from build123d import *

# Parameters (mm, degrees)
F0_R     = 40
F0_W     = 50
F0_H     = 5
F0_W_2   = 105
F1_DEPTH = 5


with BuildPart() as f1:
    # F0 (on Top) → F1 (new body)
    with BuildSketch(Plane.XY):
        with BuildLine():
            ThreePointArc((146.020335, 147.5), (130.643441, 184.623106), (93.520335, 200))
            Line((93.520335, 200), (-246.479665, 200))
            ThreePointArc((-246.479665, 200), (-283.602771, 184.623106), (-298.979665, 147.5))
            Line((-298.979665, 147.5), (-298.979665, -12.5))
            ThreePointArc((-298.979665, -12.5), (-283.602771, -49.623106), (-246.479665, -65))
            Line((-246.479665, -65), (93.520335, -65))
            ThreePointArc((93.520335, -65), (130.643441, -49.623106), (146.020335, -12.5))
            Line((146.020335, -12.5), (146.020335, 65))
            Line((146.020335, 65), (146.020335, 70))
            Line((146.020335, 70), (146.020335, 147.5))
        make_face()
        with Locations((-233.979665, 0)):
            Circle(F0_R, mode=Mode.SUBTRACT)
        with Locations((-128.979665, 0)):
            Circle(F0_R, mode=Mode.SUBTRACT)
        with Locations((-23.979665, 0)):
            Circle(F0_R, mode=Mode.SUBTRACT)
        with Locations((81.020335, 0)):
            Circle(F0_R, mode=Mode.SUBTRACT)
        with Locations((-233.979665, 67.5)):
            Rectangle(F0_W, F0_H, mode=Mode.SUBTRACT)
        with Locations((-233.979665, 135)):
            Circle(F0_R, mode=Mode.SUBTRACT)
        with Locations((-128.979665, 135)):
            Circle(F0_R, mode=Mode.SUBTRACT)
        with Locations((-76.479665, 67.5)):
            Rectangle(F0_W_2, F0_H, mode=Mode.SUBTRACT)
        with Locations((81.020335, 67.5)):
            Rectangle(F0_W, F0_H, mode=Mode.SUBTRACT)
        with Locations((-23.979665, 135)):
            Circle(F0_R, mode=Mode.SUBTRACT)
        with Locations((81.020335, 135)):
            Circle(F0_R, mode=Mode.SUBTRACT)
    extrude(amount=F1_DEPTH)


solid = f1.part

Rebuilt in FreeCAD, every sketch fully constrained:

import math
import FreeCAD as App
import Part
import Sketcher
from FreeCAD import Vector


def add_polygon(sketch, points):
    """Adds a closed chain of lines whose ends are joined by coincident constraints."""
    first, n = sketch.GeometryCount, len(points)
    for a, b in zip(points, points[1:] + points[:1]):
        sketch.addGeometry(Part.LineSegment(App.Vector(*a, 0), App.Vector(*b, 0)), False)
    for i in range(n):
        sketch.addConstraint(Sketcher.Constraint("Coincident", first + i, 2, first + (i + 1) % n, 1))

doc = App.newDocument("Part")
params = doc.addObject("Spreadsheet::Sheet", "Params")
for row, (alias, value) in enumerate([
    ("sketch1_diameter", "80 mm"),
    ("sketch1_radius", "52.5 mm"),
    ("sketch1_width", "340 mm"),
    ("sketch1_width2", "50 mm"),
    ("sketch1_width3", "105 mm"),
    ("pad1_length", "5 mm"),
], start=1):
    params.set(f"A{row}", alias)
    params.set(f"B{row}", "=" + value)
    params.setAlias(f"B{row}", alias)

body = doc.addObject("PartDesign::Body", "Body")

# Sketch on XY plane
sketch1 = body.newObject("Sketcher::SketchObject", "Sketch")
sketch1.AttachmentSupport = (doc.getObject("XY_Plane"), [""])
sketch1.MapMode = "FlatFace"
sketch1.addGeometry(Part.ArcOfCircle(Part.Circle(Vector(94, 147, 0), Vector(0, 0, 1), 53), math.radians(0), math.radians(90)), False)  # 0
sketch1.addGeometry(Part.LineSegment(Vector(94, 200, 0), Vector(-246, 200, 0)), False)  # 1
sketch1.addGeometry(Part.ArcOfCircle(Part.Circle(Vector(-246, 147, 0), Vector(0, 0, 1), 53), math.radians(90), math.radians(180)), False)  # 2
sketch1.addGeometry(Part.LineSegment(Vector(-299, 148, 0), Vector(-299, -12, 0)), False)  # 3
sketch1.addGeometry(Part.ArcOfCircle(Part.Circle(Vector(-246, -12, 0), Vector(0, 0, 1), 53), math.radians(-180), math.radians(-90)), False)  # 4
sketch1.addGeometry(Part.LineSegment(Vector(-246, -65, 0), Vector(94, -65, 0)), False)  # 5
sketch1.addGeometry(Part.ArcOfCircle(Part.Circle(Vector(94, -12, 0), Vector(0, 0, 1), 53), math.radians(-90), math.radians(0)), False)  # 6
sketch1.addGeometry(Part.LineSegment(Vector(146, -12, 0), Vector(146, 148, 0)), False)  # 7
sketch1.addGeometry(Part.Circle(Vector(-234, 0, 0), Vector(0, 0, 1), 40), False)  # 8
sketch1.addGeometry(Part.Circle(Vector(-129, 0, 0), Vector(0, 0, 1), 40), False)  # 9
sketch1.addGeometry(Part.Circle(Vector(-24, 0, 0), Vector(0, 0, 1), 40), False)  # 10
sketch1.addGeometry(Part.Circle(Vector(81, 0, 0), Vector(0, 0, 1), 40), False)  # 11
add_polygon(sketch1, [(-209, 65), (-259, 65), (-259, 70), (-209, 70)])  # lines 12-15
sketch1.addGeometry(Part.Circle(Vector(-234, 135, 0), Vector(0, 0, 1), 40), False)  # 16
sketch1.addGeometry(Part.Circle(Vector(-129, 135, 0), Vector(0, 0, 1), 40), False)  # 17
add_polygon(sketch1, [(-24, 65), (-129, 65), (-129, 70), (-24, 70)])  # lines 18-21
add_polygon(sketch1, [(106, 65), (56, 65), (56, 70), (106, 70)])  # lines 22-25
sketch1.addGeometry(Part.Circle(Vector(-24, 135, 0), Vector(0, 0, 1), 40), False)  # 26
sketch1.addGeometry(Part.Circle(Vector(81, 135, 0), Vector(0, 0, 1), 40), False)  # 27
sketch1.addConstraint(Sketcher.Constraint("Tangent", 0, 2, 1, 1))
sketch1.addConstraint(Sketcher.Constraint("Tangent", 1, 2, 2, 1))
sketch1.addConstraint(Sketcher.Constraint("Tangent", 2, 2, 3, 1))
sketch1.addConstraint(Sketcher.Constraint("Tangent", 3, 2, 4, 1))
sketch1.addConstraint(Sketcher.Constraint("Tangent", 4, 2, 5, 1))
sketch1.addConstraint(Sketcher.Constraint("Tangent", 5, 2, 6, 1))
sketch1.addConstraint(Sketcher.Constraint("Tangent", 6, 2, 7, 1))
sketch1.addConstraint(Sketcher.Constraint("Tangent", 7, 2, 0, 1))
sketch1.addConstraint(Sketcher.Constraint("Horizontal", 1))
sketch1.addConstraint(Sketcher.Constraint("Vertical", 3))
sketch1.addConstraint(Sketcher.Constraint("Horizontal", 5))
sketch1.addConstraint(Sketcher.Constraint("Vertical", 7))
sketch1.addConstraint(Sketcher.Constraint("Horizontal", 12))
sketch1.addConstraint(Sketcher.Constraint("Vertical", 13))
sketch1.addConstraint(Sketcher.Constraint("Horizontal", 14))
sketch1.addConstraint(Sketcher.Constraint("Vertical", 15))
sketch1.addConstraint(Sketcher.Constraint("Horizontal", 18))
sketch1.addConstraint(Sketcher.Constraint("Vertical", 19))
sketch1.addConstraint(Sketcher.Constraint("Horizontal", 20))
sketch1.addConstraint(Sketcher.Constraint("Vertical", 21))
sketch1.addConstraint(Sketcher.Constraint("Horizontal", 22))
sketch1.addConstraint(Sketcher.Constraint("Vertical", 23))
sketch1.addConstraint(Sketcher.Constraint("Horizontal", 24))
sketch1.addConstraint(Sketcher.Constraint("Vertical", 25))
sketch1.addConstraint(Sketcher.Constraint("Equal", 0, 2))
sketch1.addConstraint(Sketcher.Constraint("Equal", 2, 4))
sketch1.addConstraint(Sketcher.Constraint("Equal", 4, 6))
sketch1.addConstraint(Sketcher.Constraint("Equal", 8, 9))
sketch1.addConstraint(Sketcher.Constraint("Equal", 9, 10))
sketch1.addConstraint(Sketcher.Constraint("Equal", 10, 11))
sketch1.addConstraint(Sketcher.Constraint("Equal", 11, 16))
sketch1.addConstraint(Sketcher.Constraint("Equal", 16, 17))
sketch1.addConstraint(Sketcher.Constraint("Equal", 17, 26))
sketch1.addConstraint(Sketcher.Constraint("Equal", 26, 27))
sketch1.addConstraint(Sketcher.Constraint("PointOnObject", 8, 3, -1))
sketch1.addConstraint(Sketcher.Constraint("PointOnObject", 9, 3, -1))
sketch1.addConstraint(Sketcher.Constraint("PointOnObject", 10, 3, -1))
sketch1.addConstraint(Sketcher.Constraint("PointOnObject", 11, 3, -1))
sketch1.addConstraint(Sketcher.Constraint("Horizontal", 16, 3, 17, 3))
sketch1.addConstraint(Sketcher.Constraint("Horizontal", 17, 3, 26, 3))
sketch1.addConstraint(Sketcher.Constraint("Horizontal", 26, 3, 27, 3))
sketch1.addConstraint(Sketcher.Constraint("Horizontal", 15, 2, 18, 2))
sketch1.addConstraint(Sketcher.Constraint("Horizontal", 14, 2, 19, 2))
sketch1.addConstraint(Sketcher.Constraint("Horizontal", 21, 2, 22, 2))
sketch1.addConstraint(Sketcher.Constraint("Horizontal", 20, 2, 23, 2))
sketch1.addConstraint(Sketcher.Constraint("Vertical", 8, 3, 16, 3))
sketch1.addConstraint(Sketcher.Constraint("Vertical", 9, 3, 17, 3))
sketch1.addConstraint(Sketcher.Constraint("Vertical", 10, 3, 26, 3))
sketch1.addConstraint(Sketcher.Constraint("Vertical", 11, 3, 27, 3))
sketch1.addConstraint(Sketcher.Constraint("Vertical", 17, 3, 18, 2))
sketch1.addConstraint(Sketcher.Constraint("Vertical", 26, 3, 20, 2))
sketch1.addConstraint(Sketcher.Constraint("Equal", 14, 22))
sketch1.addConstraint(Sketcher.Constraint("Diameter", 8, 80.0))
sketch1.addConstraint(Sketcher.Constraint("Radius", 0, 52.5))
sketch1.addConstraint(Sketcher.Constraint("DistanceX", 1, 2, 1, 1, 340.0))
sketch1.addConstraint(Sketcher.Constraint("DistanceX", 12, 2, 12, 1, 50.0))
sketch1.addConstraint(Sketcher.Constraint("DistanceX", 18, 2, 18, 1, 105.0))
sketch1.addConstraint(Sketcher.Constraint("DistanceY", 3, 2, 3, 1, 160.0))
sketch1.addConstraint(Sketcher.Constraint("DistanceY", 13, 1, 13, 2, 5.0))
sketch1.addConstraint(Sketcher.Constraint("DistanceY", -1, 1, 16, 3, 135.0))
sketch1.addConstraint(Sketcher.Constraint("DistanceY", -1, 1, 0, 2, 200.0))
sketch1.addConstraint(Sketcher.Constraint("DistanceY", -1, 1, 12, 2, 65.0))
sketch1.addConstraint(Sketcher.Constraint("DistanceX", 8, 3, 9, 3, 105.0))
sketch1.addConstraint(Sketcher.Constraint("DistanceX", 10, 3, 11, 3, 105.0))
sketch1.addConstraint(Sketcher.Constraint("DistanceX", 2, 2, 16, 3, 65.0))
sketch1.addConstraint(Sketcher.Constraint("DistanceX", 12, 2, 8, 3, 25.0))
sketch1.addConstraint(Sketcher.Constraint("DistanceX", 22, 2, 11, 3, 25.0))
sketch1.addConstraint(Sketcher.Constraint("DistanceX", -1, 1, 0, 3, 93.520335))
sketch1.setExpression("Constraints[64]", "Params.sketch1_diameter")
sketch1.setExpression("Constraints[65]", "Params.sketch1_radius")
sketch1.setExpression("Constraints[66]", "Params.sketch1_width")
sketch1.setExpression("Constraints[67]", "Params.sketch1_width2")
sketch1.setExpression("Constraints[68]", "Params.sketch1_width3")
pad1 = body.newObject("PartDesign::Pad", "Pad")
pad1.Profile = sketch1
pad1.setExpression("Length", "Params.pad1_length")

doc.recompute()
